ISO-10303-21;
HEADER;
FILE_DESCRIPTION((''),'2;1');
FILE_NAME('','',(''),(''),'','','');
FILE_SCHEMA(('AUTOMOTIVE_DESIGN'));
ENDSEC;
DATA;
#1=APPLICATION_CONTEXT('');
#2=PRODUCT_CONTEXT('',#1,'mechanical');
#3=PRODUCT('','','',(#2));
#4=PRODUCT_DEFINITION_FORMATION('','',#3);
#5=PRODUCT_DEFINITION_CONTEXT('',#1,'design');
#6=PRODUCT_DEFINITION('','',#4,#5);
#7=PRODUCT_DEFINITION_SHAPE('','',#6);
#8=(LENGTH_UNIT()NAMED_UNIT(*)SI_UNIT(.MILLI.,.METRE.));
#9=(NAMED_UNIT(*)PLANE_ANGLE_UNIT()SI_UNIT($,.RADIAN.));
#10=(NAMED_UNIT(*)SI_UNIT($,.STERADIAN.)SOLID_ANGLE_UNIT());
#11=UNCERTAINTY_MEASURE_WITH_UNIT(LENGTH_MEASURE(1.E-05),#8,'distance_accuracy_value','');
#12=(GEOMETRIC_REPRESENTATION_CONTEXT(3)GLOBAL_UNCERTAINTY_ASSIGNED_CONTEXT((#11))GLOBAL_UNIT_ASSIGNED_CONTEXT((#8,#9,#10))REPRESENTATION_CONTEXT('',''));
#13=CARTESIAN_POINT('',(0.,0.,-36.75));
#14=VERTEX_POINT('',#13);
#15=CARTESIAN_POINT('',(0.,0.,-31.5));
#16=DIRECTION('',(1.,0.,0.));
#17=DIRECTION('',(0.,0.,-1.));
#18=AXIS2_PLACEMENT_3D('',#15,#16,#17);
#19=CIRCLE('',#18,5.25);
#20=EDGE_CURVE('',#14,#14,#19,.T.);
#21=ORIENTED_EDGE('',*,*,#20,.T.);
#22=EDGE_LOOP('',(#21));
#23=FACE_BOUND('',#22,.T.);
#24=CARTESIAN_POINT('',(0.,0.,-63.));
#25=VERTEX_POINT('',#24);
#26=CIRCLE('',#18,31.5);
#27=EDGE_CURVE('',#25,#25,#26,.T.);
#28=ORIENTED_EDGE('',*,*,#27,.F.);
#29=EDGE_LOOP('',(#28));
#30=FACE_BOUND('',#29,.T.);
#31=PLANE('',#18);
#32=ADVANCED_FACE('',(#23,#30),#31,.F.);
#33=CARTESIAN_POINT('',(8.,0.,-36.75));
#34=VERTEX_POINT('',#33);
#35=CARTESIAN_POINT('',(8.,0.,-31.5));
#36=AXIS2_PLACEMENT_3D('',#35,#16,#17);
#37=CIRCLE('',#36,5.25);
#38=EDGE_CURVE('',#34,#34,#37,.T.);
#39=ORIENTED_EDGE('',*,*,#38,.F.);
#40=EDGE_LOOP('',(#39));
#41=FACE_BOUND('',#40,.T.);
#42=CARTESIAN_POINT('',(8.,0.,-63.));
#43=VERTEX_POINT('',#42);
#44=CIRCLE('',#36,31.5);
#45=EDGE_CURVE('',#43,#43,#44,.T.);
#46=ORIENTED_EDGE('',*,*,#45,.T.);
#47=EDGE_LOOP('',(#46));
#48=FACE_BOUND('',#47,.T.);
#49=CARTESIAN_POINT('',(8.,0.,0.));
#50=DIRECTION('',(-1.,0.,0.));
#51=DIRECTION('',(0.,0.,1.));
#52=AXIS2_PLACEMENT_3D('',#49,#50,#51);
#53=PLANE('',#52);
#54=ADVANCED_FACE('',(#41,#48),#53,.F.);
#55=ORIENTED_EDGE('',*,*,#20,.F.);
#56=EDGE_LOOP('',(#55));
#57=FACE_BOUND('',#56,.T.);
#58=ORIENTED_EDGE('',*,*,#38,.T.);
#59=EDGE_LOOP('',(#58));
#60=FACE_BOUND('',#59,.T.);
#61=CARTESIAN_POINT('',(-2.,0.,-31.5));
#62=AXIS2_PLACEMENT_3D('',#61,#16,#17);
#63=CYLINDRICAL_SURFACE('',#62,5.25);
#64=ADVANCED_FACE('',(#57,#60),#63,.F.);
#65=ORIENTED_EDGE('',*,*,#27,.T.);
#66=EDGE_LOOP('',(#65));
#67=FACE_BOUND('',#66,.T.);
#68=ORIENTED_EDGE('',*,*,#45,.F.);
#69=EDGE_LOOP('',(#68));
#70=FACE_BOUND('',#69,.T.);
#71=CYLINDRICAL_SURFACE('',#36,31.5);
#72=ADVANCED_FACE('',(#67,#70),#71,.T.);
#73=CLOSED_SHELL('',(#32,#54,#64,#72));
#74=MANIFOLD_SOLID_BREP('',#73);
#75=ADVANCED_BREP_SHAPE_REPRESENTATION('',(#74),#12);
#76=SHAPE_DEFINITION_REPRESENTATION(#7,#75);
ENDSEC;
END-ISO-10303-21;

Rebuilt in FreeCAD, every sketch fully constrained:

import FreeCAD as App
import Part
import Sketcher


def add_polygon(sketch, points):
    """Adds a closed chain of lines whose ends are joined by coincident constraints."""
    first, n = sketch.GeometryCount, len(points)
    for a, b in zip(points, points[1:] + points[:1]):
        sketch.addGeometry(Part.LineSegment(App.Vector(*a, 0), App.Vector(*b, 0)), False)
    for i in range(n):
        sketch.addConstraint(Sketcher.Constraint("Coincident", first + i, 2, first + (i + 1) % n, 1))

doc = App.newDocument("Part")
params = doc.addObject("Spreadsheet::Sheet", "Params")
for row, (alias, value) in enumerate([
    ("sketch1_width", "8 mm"),
    ("sketch1_height", "31.5 mm"),
    ("revolution_angle", "360 deg"),
    ("sketch2_diameter", "10.5 mm"),
    ("pocket1_length", "10 mm"),
], start=1):
    params.set(f"A{row}", alias)
    params.set(f"B{row}", "=" + value)
    params.setAlias(f"B{row}", alias)

body = doc.addObject("PartDesign::Body", "Body")

sketch1 = doc.addObject("Sketcher::SketchObject", "Sketch")
body.addObject(sketch1)
sketch1.AttachmentSupport = (doc.XZ_Plane, [""])
sketch1.MapMode = "FlatFace"
add_polygon(sketch1, [(0, -32), (0, 0), (8, 0), (8, -32)])
sketch1.addGeometry(Part.LineSegment(App.Vector(8, -32, 0), App.Vector(0, -32, 0)), True)
sketch1.addConstraint([
    Sketcher.Constraint("Vertical", 0),
    Sketcher.Constraint("Horizontal", 1),
    Sketcher.Constraint("Vertical", 2),
    Sketcher.Constraint("Horizontal", 3),
    Sketcher.Constraint("Horizontal", 4),
    Sketcher.Constraint("Coincident", 0, 2, -1, 1),
    Sketcher.Constraint("Coincident", 4, 1, 2, 2),
    Sketcher.Constraint("PointOnObject", 4, 2, -2),
    Sketcher.Constraint("DistanceX", 1, 1, 1, 2, 8.0),
    Sketcher.Constraint("DistanceY", 0, 1, 0, 2, 31.5),
])
sketch1.setExpression("Constraints[12]", "Params.sketch1_width")
sketch1.setExpression("Constraints[13]", "Params.sketch1_height")
revolution = doc.addObject("PartDesign::Revolution", "Revolution")
body.addObject(revolution)
revolution.Profile = sketch1
revolution.ReferenceAxis = (sketch1, ["Axis0"])
revolution.setExpression("Angle", "Params.revolution_angle")

sketch2 = doc.addObject("Sketcher::SketchObject", "Sketch001")
body.addObject(sketch2)
sketch2.AttachmentSupport = (doc.YZ_Plane, [""])
sketch2.MapMode = "FlatFace"
sketch2.AttachmentOffset = App.Placement(App.Vector(0, 0, 8), App.Rotation())
sketch2.addGeometry(Part.Circle(App.Vector(0, -32, 0), App.Vector(0, 0, 1), 5), False)
sketch2.addConstraint([
    Sketcher.Constraint("PointOnObject", 0, 3, -2),
    Sketcher.Constraint("Diameter", 0, 10.5),
    Sketcher.Constraint("DistanceY", 0, 3, -1, 1, 31.5),
])
sketch2.setExpression("Constraints[1]", "Params.sketch2_diameter")
pocket1 = doc.addObject("PartDesign::Pocket", "Pocket")
body.addObject(pocket1)
pocket1.Profile = sketch2
pocket1.setExpression("Length", "Params.pocket1_length")

doc.recompute()
